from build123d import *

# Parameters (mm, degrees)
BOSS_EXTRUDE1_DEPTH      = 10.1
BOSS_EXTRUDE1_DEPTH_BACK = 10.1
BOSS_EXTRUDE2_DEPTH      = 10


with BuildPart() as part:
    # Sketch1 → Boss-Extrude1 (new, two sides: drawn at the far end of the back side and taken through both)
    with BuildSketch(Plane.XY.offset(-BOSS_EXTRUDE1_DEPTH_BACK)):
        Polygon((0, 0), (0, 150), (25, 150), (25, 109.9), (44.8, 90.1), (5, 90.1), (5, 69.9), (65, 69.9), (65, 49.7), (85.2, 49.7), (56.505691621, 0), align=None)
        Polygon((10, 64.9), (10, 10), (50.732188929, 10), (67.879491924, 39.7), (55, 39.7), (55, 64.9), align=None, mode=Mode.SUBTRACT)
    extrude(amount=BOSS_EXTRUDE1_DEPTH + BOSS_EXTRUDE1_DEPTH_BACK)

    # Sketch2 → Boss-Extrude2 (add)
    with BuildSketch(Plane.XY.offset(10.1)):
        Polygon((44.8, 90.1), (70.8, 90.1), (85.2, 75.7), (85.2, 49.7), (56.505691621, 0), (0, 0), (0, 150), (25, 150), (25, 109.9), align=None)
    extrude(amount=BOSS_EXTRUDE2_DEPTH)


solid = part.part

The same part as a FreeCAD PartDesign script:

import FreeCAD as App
import Part
import Sketcher

V = App.Vector
Q = App.Units.Quantity

doc = App.newDocument("Part")
params = doc.addObject("Spreadsheet::Sheet", "Params")
for row, (alias, value) in enumerate([
    ("sketch1_width", "60 mm"),
    ("sketch1_width2", "25 mm"),
    ("sketch1_width3", "45 mm"),
    ("sketch1_height", "150 mm"),
    ("sketch1_width4", "20.2 mm"),
    ("pad1_length", "10.1 mm"),
    ("pad1_length2", "10.1 mm"),
    ("sketch2_width", "26 mm"),
    ("sketch2_width2", "25 mm"),
    ("sketch2_height", "150 mm"),
    ("sketch2_height2", "40.1 mm"),
    ("pad2_length", "10 mm"),
], start=1):
    params.set(f"A{row}", alias)
    params.set(f"B{row}", "=" + value)
    params.setAlias(f"B{row}", alias)

body = doc.addObject("PartDesign::Body", "Body")

# Sketch on XY plane
sketch1 = body.newObject("Sketcher::SketchObject", "Sketch")
sketch1.AttachmentSupport = (doc.getObject("XY_Plane"), [""])
sketch1.MapMode = "FlatFace"
sketch1.addGeometry([
    Part.LineSegment(V(0, 150, 0), V(0, 0, 0)),  # 0
    Part.LineSegment(V(0, 0, 0), V(56.505692, 0, 0)),  # 1
    Part.LineSegment(V(56.505692, 0, 0), V(85.2, 49.7, 0)),  # 2
    Part.LineSegment(V(85.2, 49.7, 0), V(65, 49.7, 0)),  # 3
    Part.LineSegment(V(65, 49.7, 0), V(65, 69.9, 0)),  # 4
    Part.LineSegment(V(65, 69.9, 0), V(5, 69.9, 0)),  # 5
    Part.LineSegment(V(5, 69.9, 0), V(5, 90.1, 0)),  # 6
    Part.LineSegment(V(5, 90.1, 0), V(44.8, 90.1, 0)),  # 7
    Part.LineSegment(V(44.8, 90.1, 0), V(25, 109.9, 0)),  # 8
    Part.LineSegment(V(25, 109.9, 0), V(25, 150, 0)),  # 9
    Part.LineSegment(V(25, 150, 0), V(0, 150, 0)),  # 10
    Part.LineSegment(V(10, 64.9, 0), V(55, 64.9, 0)),  # 11
    Part.LineSegment(V(55, 64.9, 0), V(55, 39.7, 0)),  # 12
    Part.LineSegment(V(55, 39.7, 0), V(67.879492, 39.7, 0)),  # 13
    Part.LineSegment(V(67.879492, 39.7, 0), V(50.732189, 10, 0)),  # 14
    Part.LineSegment(V(50.732189, 10, 0), V(10, 10, 0)),  # 15
    Part.LineSegment(V(10, 10, 0), V(10, 64.9, 0)),  # 16
], False)
sketch1.addConstraint([
    Sketcher.Constraint("Coincident", 0, 2, 1, 1),
    Sketcher.Constraint("Coincident", 1, 2, 2, 1),
    Sketcher.Constraint("Coincident", 2, 2, 3, 1),
    Sketcher.Constraint("Coincident", 3, 2, 4, 1),
    Sketcher.Constraint("Coincident", 4, 2, 5, 1),
    Sketcher.Constraint("Coincident", 5, 2, 6, 1),
    Sketcher.Constraint("Coincident", 6, 2, 7, 1),
    Sketcher.Constraint("Coincident", 7, 2, 8, 1),
    Sketcher.Constraint("Coincident", 8, 2, 9, 1),
    Sketcher.Constraint("Coincident", 9, 2, 10, 1),
    Sketcher.Constraint("Coincident", 10, 2, 0, 1),
    Sketcher.Constraint("Coincident", 11, 2, 12, 1),
    Sketcher.Constraint("Coincident", 12, 2, 13, 1),
    Sketcher.Constraint("Coincident", 13, 2, 14, 1),
    Sketcher.Constraint("Coincident", 14, 2, 15, 1),
    Sketcher.Constraint("Coincident", 15, 2, 16, 1),
    Sketcher.Constraint("Coincident", 16, 2, 11, 1),
    Sketcher.Constraint("Vertical", 0),
    Sketcher.Constraint("Horizontal", 1),
    Sketcher.Constraint("Horizontal", 3),
    Sketcher.Constraint("Vertical", 4),
    Sketcher.Constraint("Horizontal", 5),
    Sketcher.Constraint("Vertical", 6),
    Sketcher.Constraint("Horizontal", 7),
    Sketcher.Constraint("Vertical", 9),
    Sketcher.Constraint("Horizontal", 10),
    Sketcher.Constraint("Horizontal", 11),
    Sketcher.Constraint("Vertical", 12),
    Sketcher.Constraint("Horizontal", 13),
    Sketcher.Constraint("Horizontal", 15),
    Sketcher.Constraint("Vertical", 16),
    Sketcher.Constraint("Coincident", 0, 2, -1, 1),
    Sketcher.Constraint("Parallel", 2, 14),
    Sketcher.Constraint("Equal", 3, 4),
    Sketcher.Constraint("Equal", 4, 6),
    Sketcher.Constraint("DistanceX", 5, 2, 5, 1, Q("60 mm")),
    Sketcher.Constraint("DistanceX", 10, 2, 10, 1, Q("25 mm")),
    Sketcher.Constraint("DistanceX", 11, 1, 11, 2, Q("45 mm")),
    Sketcher.Constraint("DistanceY", 0, 2, 0, 1, Q("150 mm")),
    Sketcher.Constraint("Angle", 2, Q("60 deg")),
    Sketcher.Constraint("Angle", 8, Q("135 deg")),
    Sketcher.Constraint("DistanceX", 3, 2, 3, 1, Q("20.2 mm")),
    Sketcher.Constraint("DistanceX", 7, 1, 7, 2, Q("39.8 mm")),
    Sketcher.Constraint("DistanceY", 9, 1, 9, 2, Q("40.1 mm")),
    Sketcher.Constraint("DistanceY", 12, 2, 12, 1, Q("25.2 mm")),
    Sketcher.Constraint("DistanceY", 16, 1, 16, 2, Q("54.9 mm")),
    Sketcher.Constraint("DistanceX", -1, 1, 3, 2, Q("65 mm")),
    Sketcher.Constraint("DistanceX", -1, 1, 11, 2, Q("55 mm")),
    Sketcher.Constraint("DistanceY", -1, 1, 14, 2, Q("10 mm")),
    Sketcher.Constraint("DistanceX", 13, 1, 13, 2, Q("12.879492 mm")),
])
sketch1.setExpression("Constraints[35]", "Params.sketch1_width")
sketch1.setExpression("Constraints[36]", "Params.sketch1_width2")
sketch1.setExpression("Constraints[37]", "Params.sketch1_width3")
sketch1.setExpression("Constraints[38]", "Params.sketch1_height")
sketch1.setExpression("Constraints[41]", "Params.sketch1_width4")
pad1 = body.newObject("PartDesign::Pad", "Pad")
pad1.Profile = sketch1
pad1.Type = "TwoLengths"
pad1.setExpression("Length", "Params.pad1_length")
pad1.setExpression("Length2", "Params.pad1_length2")

# Sketch on XY plane
sketch2 = body.newObject("Sketcher::SketchObject", "Sketch001")
sketch2.AttachmentSupport = (doc.getObject("XY_Plane"), [""])
sketch2.MapMode = "FlatFace"
sketch2.AttachmentOffset = App.Placement(V(0, 0, 10.1), App.Rotation())
sketch2.addGeometry([
    Part.LineSegment(V(70.8, 90.1, 0), V(44.8, 90.1, 0)),  # 0
    Part.LineSegment(V(44.8, 90.1, 0), V(25, 109.9, 0)),  # 1
    Part.LineSegment(V(25, 109.9, 0), V(25, 150, 0)),  # 2
    Part.LineSegment(V(25, 150, 0), V(0, 150, 0)),  # 3
    Part.LineSegment(V(0, 150, 0), V(0, 0, 0)),  # 4
    Part.LineSegment(V(0, 0, 0), V(56.505692, 0, 0)),  # 5
    Part.LineSegment(V(56.505692, 0, 0), V(85.2, 49.7, 0)),  # 6
    Part.LineSegment(V(85.2, 49.7, 0), V(85.2, 75.7, 0)),  # 7
    Part.LineSegment(V(85.2, 75.7, 0), V(70.8, 90.1, 0)),  # 8
], False)
sketch2.addConstraint([
    Sketcher.Constraint("Coincident", 0, 2, 1, 1),
    Sketcher.Constraint("Coincident", 1, 2, 2, 1),
    Sketcher.Constraint("Coincident", 2, 2, 3, 1),
    Sketcher.Constraint("Coincident", 3, 2, 4, 1),
    Sketcher.Constraint("Coincident", 4, 2, 5, 1),
    Sketcher.Constraint("Coincident", 5, 2, 6, 1),
    Sketcher.Constraint("Coincident", 6, 2, 7, 1),
    Sketcher.Constraint("Coincident", 7, 2, 8, 1),
    Sketcher.Constraint("Coincident", 8, 2, 0, 1),
    Sketcher.Constraint("Horizontal", 0),
    Sketcher.Constraint("Vertical", 2),
    Sketcher.Constraint("Horizontal", 3),
    Sketcher.Constraint("Vertical", 4),
    Sketcher.Constraint("Horizontal", 5),
    Sketcher.Constraint("Vertical", 7),
    Sketcher.Constraint("Coincident", 4, 2, -1, 1),
    Sketcher.Constraint("Parallel", 1, 8),
    Sketcher.Constraint("Equal", 0, 7),
    Sketcher.Constraint("DistanceX", 0, 2, 0, 1, Q("26 mm")),
    Sketcher.Constraint("DistanceX", 3, 2, 3, 1, Q("25 mm")),
    Sketcher.Constraint("DistanceY", 4, 2, 4, 1, Q("150 mm")),
    Sketcher.Constraint("Angle", 1, Q("135 deg")),
    Sketcher.Constraint("Angle", 6, Q("60 deg")),
    Sketcher.Constraint("DistanceY", 2, 1, 2, 2, Q("40.1 mm")),
    Sketcher.Constraint("DistanceX", -1, 1, 0, 2, Q("44.8 mm")),
    Sketcher.Constraint("DistanceX", -1, 1, 6, 2, Q("85.2 mm")),
])
sketch2.setExpression("Constraints[18]", "Params.sketch2_width")
sketch2.setExpression("Constraints[19]", "Params.sketch2_width2")
sketch2.setExpression("Constraints[20]", "Params.sketch2_height")
sketch2.setExpression("Constraints[23]", "Params.sketch2_height2")
pad2 = body.newObject("PartDesign::Pad", "Pad001")
pad2.Profile = sketch2
pad2.setExpression("Length", "Params.pad2_length")

doc.recompute()
